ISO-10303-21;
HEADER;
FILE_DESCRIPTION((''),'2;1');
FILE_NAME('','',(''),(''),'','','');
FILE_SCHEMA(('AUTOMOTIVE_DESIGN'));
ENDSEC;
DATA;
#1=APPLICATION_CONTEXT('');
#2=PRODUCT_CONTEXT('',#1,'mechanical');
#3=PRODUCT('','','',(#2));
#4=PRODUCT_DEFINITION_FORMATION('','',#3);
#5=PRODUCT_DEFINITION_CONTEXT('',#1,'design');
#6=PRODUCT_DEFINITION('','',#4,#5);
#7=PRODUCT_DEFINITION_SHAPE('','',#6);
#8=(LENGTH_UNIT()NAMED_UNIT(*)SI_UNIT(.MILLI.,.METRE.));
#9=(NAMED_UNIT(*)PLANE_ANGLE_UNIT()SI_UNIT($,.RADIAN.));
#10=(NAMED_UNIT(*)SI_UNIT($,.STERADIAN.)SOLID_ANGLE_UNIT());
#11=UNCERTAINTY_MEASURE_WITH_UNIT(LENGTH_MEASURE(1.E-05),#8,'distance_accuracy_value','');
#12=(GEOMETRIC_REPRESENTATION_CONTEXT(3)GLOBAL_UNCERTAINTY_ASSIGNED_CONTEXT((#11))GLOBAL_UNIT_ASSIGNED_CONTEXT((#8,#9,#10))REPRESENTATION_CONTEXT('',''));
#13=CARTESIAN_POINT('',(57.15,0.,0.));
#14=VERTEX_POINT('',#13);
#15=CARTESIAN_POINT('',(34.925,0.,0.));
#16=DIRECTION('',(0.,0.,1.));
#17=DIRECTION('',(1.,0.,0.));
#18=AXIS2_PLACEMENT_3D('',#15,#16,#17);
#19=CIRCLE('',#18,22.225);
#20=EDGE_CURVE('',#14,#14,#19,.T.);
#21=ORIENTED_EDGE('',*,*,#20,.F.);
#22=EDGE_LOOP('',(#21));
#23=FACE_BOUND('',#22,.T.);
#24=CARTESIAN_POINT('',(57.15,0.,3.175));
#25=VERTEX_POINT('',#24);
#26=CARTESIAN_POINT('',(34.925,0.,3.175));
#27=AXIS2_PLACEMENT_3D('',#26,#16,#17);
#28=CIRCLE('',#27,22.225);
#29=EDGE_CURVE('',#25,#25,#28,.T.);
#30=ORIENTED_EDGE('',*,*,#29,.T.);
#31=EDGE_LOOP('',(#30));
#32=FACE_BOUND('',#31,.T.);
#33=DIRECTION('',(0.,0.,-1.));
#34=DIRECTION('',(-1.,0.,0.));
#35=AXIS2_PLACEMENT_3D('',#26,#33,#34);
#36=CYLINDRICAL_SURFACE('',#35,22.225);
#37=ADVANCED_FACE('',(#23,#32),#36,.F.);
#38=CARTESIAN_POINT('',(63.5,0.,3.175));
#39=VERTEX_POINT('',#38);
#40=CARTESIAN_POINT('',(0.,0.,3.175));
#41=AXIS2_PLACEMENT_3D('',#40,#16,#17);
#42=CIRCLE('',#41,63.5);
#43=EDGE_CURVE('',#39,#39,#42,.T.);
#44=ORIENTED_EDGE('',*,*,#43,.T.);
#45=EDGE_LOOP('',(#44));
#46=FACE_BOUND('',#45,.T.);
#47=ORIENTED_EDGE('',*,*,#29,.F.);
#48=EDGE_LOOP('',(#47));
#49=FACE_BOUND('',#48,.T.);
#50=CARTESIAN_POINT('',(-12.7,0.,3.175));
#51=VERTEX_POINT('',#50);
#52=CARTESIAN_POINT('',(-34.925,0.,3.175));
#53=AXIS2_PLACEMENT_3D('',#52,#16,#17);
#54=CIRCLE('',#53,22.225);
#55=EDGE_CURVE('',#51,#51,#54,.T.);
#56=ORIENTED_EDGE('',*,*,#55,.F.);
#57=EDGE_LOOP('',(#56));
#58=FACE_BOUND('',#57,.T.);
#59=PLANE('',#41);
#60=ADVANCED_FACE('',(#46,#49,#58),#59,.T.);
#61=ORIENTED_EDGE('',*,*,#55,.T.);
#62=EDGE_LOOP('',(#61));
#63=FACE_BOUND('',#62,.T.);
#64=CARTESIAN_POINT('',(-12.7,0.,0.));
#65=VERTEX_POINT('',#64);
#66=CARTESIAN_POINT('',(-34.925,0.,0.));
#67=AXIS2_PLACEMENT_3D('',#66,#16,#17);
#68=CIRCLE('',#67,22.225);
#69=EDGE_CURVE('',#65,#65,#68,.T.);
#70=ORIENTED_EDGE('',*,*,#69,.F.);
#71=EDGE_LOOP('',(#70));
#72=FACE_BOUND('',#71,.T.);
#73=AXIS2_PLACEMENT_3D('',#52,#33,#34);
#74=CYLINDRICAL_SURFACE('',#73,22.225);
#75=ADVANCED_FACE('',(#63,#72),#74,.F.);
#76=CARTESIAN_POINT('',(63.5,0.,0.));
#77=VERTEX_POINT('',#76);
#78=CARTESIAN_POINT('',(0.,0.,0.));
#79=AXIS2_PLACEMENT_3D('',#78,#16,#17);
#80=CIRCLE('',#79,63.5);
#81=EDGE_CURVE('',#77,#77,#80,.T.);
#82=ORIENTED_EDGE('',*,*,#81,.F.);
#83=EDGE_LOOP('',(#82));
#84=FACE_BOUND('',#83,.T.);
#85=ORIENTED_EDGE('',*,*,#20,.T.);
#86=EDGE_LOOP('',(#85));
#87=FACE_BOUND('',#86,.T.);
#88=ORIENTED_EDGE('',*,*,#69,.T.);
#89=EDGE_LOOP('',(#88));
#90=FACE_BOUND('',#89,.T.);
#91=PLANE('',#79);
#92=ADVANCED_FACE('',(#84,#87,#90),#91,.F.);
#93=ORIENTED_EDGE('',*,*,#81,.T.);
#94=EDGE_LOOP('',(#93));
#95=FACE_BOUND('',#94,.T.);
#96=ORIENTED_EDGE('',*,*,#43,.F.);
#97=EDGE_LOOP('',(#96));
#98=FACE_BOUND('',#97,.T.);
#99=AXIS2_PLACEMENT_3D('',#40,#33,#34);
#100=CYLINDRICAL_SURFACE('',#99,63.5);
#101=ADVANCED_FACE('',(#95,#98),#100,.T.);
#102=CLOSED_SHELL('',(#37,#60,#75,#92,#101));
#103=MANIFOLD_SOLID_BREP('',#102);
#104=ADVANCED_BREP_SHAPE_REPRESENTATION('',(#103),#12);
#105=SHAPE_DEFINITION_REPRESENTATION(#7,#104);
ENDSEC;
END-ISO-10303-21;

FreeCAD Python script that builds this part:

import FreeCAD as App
import Part
import Sketcher
Q = App.Units.Quantity

doc = App.newDocument("Part")
body = doc.addObject("PartDesign::Body", "Body")

# Sketch on XY plane
sketch1 = doc.addObject("Sketcher::SketchObject", "Sketch")
body.addObject(sketch1)
sketch1.AttachmentSupport = (doc.XY_Plane, [""])
sketch1.MapMode = "FlatFace"
sketch1.addGeometry([
    Part.Circle(App.Vector(0, 0, 0), App.Vector(0, 0, 1), 64),
    Part.Circle(App.Vector(-35, 0, 0), App.Vector(0, 0, 1), 22),
    Part.Circle(App.Vector(35, 0, 0), App.Vector(0, 0, 1), 22),
], False)
sketch1.addConstraint([
    Sketcher.Constraint("Coincident", 0, 3, -1, 1),
    Sketcher.Constraint("Equal", 1, 2),
    Sketcher.Constraint("Symmetric", 1, 3, 2, 3, -1, 1),
    Sketcher.Constraint("PointOnObject", 1, 3, -1),
    Sketcher.Constraint("Diameter", 0, Q("5 in")),
    Sketcher.Constraint("Diameter", 1, Q("1.75 in")),
    Sketcher.Constraint("DistanceX", 1, 3, 2, 3, Q("2.75 in")),
])
pad1 = doc.addObject("PartDesign::Pad", "Pad")
body.addObject(pad1)
pad1.Profile = sketch1
pad1.Length = Q("0.125 in")

doc.recompute()
